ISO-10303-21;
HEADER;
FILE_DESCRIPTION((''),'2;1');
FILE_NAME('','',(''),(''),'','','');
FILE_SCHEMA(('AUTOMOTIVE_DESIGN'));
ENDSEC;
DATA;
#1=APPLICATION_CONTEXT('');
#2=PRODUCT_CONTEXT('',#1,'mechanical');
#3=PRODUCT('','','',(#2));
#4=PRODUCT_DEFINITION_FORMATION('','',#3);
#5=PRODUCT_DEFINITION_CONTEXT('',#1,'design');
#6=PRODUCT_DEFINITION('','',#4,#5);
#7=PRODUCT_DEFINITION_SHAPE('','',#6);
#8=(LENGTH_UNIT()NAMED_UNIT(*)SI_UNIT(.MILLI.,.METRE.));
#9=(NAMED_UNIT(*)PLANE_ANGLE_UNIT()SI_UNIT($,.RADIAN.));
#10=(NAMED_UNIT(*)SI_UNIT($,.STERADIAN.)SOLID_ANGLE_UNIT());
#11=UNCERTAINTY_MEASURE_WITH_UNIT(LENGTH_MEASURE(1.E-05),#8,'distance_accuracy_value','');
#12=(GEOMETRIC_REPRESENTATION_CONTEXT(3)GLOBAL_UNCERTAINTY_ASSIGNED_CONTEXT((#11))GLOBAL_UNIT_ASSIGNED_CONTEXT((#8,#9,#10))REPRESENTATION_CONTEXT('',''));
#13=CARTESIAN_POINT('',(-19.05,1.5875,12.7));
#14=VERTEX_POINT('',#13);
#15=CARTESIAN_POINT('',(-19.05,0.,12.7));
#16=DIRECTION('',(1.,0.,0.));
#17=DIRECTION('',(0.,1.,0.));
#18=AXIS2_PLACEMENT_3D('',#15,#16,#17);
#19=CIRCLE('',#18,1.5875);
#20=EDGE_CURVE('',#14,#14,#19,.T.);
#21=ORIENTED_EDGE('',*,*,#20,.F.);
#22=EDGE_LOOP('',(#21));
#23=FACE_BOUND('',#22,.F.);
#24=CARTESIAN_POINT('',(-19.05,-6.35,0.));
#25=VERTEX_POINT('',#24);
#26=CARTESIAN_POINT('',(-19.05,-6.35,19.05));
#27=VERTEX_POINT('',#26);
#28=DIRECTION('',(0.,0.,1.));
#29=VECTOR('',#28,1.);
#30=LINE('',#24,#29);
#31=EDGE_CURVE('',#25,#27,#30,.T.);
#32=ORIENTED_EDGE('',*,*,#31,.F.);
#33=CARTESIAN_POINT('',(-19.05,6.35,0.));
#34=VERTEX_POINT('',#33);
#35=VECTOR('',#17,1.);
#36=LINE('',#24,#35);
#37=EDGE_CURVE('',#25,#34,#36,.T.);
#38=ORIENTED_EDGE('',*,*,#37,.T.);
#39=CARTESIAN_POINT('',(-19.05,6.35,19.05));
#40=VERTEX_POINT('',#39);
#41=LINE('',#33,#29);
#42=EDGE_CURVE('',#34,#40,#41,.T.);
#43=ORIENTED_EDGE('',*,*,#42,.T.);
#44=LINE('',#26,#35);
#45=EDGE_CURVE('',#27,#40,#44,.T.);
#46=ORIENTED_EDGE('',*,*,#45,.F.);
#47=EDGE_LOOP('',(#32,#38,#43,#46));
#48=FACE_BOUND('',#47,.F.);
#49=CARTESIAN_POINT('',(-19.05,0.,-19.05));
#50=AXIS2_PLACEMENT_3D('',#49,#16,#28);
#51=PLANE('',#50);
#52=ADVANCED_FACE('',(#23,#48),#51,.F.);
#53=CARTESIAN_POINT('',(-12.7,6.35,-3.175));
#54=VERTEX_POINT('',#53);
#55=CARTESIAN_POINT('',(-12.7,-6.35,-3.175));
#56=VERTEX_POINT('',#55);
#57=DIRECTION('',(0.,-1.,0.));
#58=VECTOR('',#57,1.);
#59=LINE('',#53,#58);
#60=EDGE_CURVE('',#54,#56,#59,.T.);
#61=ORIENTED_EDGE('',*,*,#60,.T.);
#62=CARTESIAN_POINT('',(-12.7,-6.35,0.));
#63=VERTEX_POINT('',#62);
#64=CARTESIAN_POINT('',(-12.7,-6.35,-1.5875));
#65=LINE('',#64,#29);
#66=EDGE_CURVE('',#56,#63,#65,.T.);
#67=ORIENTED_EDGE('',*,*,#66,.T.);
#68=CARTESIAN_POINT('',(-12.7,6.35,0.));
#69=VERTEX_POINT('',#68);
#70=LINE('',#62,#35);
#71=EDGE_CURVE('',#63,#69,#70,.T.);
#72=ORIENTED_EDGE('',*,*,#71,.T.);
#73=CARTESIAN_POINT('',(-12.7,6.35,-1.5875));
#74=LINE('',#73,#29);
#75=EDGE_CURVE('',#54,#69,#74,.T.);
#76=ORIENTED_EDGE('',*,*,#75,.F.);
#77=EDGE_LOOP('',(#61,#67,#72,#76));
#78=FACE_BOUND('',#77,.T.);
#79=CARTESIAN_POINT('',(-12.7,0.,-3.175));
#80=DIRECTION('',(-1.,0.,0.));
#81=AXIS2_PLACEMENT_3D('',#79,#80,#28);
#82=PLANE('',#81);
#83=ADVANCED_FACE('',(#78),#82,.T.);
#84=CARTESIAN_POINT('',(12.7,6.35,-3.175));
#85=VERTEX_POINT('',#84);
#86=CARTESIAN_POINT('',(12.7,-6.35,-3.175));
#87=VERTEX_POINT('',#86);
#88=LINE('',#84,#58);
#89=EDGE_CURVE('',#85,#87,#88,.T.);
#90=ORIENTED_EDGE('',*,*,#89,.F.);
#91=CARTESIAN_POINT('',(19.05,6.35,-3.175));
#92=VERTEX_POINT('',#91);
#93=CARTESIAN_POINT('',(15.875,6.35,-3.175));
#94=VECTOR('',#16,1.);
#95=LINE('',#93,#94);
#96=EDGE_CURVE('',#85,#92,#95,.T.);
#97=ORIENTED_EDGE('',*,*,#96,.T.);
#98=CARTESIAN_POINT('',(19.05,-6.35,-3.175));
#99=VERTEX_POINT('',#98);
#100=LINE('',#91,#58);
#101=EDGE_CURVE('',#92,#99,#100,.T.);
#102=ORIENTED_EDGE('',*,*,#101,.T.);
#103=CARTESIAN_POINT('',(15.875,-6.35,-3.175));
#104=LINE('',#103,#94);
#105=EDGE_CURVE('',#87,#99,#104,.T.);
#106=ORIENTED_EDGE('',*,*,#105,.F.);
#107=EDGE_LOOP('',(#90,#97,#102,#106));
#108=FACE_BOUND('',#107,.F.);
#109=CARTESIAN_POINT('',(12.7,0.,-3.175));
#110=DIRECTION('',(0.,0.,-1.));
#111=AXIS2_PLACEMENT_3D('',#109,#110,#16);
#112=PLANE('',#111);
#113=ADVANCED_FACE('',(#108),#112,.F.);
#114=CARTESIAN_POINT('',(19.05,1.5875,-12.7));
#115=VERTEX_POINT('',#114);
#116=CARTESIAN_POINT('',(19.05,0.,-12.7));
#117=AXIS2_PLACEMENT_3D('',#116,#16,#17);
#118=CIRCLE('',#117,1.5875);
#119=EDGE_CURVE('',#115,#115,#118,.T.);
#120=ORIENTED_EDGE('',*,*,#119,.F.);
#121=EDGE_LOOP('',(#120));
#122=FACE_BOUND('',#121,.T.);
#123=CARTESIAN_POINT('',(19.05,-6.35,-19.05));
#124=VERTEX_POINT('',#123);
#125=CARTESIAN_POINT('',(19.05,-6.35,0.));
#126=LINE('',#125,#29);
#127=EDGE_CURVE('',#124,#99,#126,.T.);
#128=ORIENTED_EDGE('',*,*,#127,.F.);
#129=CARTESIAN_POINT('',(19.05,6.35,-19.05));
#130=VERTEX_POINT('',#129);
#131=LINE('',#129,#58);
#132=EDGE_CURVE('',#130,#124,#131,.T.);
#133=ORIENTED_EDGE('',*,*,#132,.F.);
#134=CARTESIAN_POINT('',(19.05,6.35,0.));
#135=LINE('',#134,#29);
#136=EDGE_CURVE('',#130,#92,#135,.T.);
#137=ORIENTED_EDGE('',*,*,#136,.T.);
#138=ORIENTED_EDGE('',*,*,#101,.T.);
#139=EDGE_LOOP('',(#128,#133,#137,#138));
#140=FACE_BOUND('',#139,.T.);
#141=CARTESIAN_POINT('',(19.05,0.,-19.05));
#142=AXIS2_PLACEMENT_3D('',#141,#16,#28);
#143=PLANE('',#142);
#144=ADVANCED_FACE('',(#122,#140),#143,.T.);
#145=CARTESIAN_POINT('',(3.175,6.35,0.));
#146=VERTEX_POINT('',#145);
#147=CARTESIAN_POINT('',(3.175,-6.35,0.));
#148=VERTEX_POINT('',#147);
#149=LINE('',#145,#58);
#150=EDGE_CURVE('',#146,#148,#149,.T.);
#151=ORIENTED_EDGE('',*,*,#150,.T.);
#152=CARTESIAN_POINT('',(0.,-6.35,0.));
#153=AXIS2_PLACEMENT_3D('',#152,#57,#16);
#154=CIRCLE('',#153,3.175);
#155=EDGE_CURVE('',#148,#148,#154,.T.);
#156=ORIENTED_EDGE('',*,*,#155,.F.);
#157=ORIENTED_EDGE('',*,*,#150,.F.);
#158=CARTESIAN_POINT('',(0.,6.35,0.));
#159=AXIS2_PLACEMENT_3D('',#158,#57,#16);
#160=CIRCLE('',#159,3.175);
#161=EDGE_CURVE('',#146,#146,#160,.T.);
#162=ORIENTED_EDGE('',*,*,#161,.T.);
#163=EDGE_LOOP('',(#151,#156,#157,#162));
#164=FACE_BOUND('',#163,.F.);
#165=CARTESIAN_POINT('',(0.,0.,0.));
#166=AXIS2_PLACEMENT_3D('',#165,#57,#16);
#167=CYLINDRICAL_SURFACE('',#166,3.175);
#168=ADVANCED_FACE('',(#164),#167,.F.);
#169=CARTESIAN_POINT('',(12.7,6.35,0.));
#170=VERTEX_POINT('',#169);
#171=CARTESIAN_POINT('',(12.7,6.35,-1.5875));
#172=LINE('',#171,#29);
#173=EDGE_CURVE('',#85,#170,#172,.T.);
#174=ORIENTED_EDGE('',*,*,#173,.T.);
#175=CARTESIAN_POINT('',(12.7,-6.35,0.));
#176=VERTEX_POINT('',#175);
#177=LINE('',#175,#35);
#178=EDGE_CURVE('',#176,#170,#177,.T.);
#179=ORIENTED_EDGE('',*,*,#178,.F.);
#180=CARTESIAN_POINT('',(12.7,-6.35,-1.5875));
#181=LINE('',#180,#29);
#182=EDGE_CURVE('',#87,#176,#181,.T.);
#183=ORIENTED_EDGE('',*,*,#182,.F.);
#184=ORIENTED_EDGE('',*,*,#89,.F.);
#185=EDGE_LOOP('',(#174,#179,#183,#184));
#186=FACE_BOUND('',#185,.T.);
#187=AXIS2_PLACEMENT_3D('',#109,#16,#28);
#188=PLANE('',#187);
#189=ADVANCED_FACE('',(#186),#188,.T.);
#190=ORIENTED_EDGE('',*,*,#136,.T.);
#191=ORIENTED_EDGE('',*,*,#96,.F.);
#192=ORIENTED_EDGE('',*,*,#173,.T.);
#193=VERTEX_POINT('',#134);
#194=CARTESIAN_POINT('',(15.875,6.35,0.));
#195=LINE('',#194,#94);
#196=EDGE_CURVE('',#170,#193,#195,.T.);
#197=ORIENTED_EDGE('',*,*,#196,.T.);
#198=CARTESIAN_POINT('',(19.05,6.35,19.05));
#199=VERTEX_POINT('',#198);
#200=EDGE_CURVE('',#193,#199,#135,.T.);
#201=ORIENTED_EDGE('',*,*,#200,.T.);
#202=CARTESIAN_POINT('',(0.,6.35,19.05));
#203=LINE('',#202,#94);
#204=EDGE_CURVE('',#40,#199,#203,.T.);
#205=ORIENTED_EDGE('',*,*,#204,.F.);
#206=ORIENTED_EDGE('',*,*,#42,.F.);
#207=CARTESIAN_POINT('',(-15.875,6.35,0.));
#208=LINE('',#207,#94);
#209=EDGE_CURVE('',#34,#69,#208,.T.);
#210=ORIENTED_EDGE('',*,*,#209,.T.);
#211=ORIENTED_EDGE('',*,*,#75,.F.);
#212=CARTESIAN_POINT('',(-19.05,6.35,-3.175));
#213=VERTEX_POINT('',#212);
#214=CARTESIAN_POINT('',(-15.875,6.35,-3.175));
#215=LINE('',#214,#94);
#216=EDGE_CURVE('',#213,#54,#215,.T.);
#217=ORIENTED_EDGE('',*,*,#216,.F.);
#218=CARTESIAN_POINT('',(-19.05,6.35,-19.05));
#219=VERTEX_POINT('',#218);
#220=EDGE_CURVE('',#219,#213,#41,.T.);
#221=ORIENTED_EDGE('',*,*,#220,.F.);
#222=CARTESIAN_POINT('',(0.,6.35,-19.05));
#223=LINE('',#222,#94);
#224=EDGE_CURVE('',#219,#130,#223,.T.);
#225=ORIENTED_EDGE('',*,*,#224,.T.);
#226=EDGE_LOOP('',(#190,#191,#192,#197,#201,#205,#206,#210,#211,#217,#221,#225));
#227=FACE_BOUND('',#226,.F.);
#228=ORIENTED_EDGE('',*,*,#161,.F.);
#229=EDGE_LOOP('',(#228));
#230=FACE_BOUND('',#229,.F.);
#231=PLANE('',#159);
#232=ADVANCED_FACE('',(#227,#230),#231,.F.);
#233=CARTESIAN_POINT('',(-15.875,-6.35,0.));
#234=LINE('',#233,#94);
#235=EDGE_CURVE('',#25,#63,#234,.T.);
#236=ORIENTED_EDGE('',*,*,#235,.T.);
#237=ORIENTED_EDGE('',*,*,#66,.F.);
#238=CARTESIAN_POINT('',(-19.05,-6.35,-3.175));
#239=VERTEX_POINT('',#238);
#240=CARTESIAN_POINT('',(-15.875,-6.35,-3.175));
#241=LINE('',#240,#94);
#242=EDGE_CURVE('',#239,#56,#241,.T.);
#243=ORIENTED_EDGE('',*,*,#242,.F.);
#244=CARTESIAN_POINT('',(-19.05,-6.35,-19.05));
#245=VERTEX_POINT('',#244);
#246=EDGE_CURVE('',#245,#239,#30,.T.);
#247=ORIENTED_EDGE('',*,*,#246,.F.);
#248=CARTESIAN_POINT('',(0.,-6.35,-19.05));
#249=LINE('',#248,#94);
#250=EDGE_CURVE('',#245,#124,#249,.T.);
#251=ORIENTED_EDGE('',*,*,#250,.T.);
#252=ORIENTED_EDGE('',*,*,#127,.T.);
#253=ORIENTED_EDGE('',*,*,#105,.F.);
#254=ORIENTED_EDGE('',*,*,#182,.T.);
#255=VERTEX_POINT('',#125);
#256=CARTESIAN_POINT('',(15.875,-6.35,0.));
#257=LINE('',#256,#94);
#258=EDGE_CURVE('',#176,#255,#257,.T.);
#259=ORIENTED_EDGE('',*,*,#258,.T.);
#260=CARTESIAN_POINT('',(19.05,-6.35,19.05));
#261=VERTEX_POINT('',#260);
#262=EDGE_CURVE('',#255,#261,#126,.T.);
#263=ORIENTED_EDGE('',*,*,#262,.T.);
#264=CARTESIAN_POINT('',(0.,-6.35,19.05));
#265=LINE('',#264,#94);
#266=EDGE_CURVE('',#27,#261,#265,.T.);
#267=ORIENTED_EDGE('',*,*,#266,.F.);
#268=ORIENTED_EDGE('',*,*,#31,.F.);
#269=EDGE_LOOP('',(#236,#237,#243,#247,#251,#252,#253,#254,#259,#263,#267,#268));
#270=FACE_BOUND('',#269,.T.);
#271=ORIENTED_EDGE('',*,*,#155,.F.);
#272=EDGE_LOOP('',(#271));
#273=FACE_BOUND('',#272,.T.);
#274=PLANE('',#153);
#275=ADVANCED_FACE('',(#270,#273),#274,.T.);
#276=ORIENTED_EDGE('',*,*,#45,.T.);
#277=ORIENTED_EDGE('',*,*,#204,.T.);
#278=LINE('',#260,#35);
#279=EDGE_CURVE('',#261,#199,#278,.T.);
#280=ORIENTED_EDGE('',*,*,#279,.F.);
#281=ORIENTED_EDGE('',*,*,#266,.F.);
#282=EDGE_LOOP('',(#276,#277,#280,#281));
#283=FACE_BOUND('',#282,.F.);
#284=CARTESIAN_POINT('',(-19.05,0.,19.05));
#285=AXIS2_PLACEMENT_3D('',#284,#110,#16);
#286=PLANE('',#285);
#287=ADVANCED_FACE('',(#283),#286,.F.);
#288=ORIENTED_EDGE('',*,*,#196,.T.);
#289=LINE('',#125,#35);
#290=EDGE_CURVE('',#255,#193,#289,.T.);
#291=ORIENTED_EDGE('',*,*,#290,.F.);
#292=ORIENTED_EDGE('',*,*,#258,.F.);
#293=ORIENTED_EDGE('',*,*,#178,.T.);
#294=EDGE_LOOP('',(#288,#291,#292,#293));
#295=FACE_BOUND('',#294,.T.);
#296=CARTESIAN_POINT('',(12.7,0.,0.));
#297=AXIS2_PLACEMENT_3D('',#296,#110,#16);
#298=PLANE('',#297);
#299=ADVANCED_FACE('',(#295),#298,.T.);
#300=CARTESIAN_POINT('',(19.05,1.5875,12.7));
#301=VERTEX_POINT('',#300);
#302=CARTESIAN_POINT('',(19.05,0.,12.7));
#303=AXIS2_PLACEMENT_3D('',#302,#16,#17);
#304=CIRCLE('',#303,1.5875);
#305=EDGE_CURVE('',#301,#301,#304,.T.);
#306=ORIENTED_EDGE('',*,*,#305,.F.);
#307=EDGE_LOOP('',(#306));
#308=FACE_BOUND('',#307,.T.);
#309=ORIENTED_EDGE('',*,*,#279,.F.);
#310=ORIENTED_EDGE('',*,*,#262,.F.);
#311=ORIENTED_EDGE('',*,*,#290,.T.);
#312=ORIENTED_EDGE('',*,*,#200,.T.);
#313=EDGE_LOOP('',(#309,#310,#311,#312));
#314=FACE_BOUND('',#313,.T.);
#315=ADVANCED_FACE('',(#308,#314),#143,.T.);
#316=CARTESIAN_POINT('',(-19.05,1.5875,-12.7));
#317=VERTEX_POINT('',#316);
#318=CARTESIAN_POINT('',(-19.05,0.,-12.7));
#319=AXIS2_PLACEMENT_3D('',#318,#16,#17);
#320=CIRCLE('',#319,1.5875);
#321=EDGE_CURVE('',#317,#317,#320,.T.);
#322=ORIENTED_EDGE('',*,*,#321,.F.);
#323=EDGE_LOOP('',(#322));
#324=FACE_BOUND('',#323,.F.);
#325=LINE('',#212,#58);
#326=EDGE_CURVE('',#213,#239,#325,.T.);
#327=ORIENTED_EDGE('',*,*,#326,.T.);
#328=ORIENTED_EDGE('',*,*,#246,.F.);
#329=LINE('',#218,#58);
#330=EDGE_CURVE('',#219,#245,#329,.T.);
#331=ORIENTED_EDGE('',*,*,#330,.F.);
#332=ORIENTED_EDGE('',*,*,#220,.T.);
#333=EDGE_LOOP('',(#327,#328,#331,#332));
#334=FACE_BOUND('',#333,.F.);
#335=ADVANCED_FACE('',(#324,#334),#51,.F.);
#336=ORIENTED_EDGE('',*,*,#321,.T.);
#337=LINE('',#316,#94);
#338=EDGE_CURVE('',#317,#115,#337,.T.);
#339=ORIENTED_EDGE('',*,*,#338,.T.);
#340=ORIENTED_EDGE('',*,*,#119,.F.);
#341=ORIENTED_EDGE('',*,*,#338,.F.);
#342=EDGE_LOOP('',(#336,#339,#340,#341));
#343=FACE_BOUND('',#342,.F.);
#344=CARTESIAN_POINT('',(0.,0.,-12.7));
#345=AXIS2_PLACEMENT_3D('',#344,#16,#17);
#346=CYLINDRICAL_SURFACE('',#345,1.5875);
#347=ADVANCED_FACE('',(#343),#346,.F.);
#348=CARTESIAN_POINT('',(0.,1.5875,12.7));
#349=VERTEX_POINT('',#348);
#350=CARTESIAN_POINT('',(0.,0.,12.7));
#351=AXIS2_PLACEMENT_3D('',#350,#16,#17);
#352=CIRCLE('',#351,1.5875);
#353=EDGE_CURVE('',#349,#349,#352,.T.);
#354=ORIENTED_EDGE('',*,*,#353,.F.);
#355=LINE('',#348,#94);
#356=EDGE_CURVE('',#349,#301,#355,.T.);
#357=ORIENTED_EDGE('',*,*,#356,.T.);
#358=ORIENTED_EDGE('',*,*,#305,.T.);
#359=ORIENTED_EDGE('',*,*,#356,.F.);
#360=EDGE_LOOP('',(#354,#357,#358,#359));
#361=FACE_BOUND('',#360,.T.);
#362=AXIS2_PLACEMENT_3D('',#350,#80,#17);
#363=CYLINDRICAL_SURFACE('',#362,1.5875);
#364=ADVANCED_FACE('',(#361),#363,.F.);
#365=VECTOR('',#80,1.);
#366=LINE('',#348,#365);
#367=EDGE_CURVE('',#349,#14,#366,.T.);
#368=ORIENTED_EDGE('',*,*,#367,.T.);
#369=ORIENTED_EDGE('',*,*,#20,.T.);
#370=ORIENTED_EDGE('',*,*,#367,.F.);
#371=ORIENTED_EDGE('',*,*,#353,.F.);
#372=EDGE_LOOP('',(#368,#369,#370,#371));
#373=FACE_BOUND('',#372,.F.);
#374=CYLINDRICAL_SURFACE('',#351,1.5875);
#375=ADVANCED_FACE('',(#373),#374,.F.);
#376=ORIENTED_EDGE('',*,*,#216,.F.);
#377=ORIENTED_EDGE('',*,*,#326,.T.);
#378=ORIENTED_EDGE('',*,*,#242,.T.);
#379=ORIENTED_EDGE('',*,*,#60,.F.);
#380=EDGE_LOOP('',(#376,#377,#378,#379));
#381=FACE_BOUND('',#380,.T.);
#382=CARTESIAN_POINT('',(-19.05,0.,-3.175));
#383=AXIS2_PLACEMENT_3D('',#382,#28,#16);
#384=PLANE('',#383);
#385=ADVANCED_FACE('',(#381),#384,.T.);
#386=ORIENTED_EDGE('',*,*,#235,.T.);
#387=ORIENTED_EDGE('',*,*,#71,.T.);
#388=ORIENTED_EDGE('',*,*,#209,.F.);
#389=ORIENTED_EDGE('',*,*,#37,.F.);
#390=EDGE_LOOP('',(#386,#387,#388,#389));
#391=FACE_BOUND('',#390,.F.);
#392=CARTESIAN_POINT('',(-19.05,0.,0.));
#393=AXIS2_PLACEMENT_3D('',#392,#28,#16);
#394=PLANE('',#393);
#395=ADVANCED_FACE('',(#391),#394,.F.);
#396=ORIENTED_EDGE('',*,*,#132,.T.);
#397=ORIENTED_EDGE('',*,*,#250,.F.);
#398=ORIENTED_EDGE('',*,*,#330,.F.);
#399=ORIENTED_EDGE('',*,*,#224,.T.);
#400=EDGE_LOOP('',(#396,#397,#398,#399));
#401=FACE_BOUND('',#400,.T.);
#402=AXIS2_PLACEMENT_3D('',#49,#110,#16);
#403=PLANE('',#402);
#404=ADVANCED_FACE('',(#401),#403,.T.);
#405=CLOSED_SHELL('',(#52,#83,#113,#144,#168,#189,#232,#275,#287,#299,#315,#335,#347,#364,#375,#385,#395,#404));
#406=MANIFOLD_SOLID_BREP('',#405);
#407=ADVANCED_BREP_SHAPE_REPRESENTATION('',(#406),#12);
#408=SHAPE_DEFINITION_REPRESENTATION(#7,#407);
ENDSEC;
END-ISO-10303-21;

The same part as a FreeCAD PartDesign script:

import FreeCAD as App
import Part
import Sketcher
Q = App.Units.Quantity

doc = App.newDocument("Part")
body = doc.addObject("PartDesign::Body", "Body")

# Sketch on XZ plane
sketch1 = doc.addObject("Sketcher::SketchObject", "Sketch")
body.addObject(sketch1)
sketch1.AttachmentSupport = (doc.XZ_Plane, [""])
sketch1.MapMode = "FlatFace"
sketch1.addGeometry(Part.LineSegment(App.Vector(-19, 19, 0), App.Vector(-19, -19, 0)), False)
sketch1.addGeometry(Part.LineSegment(App.Vector(-19, -19, 0), App.Vector(19, -19, 0)), False)
sketch1.addGeometry(Part.LineSegment(App.Vector(19, -19, 0), App.Vector(19, 19, 0)), False)
sketch1.addGeometry(Part.LineSegment(App.Vector(19, 19, 0), App.Vector(-19, 19, 0)), False)
sketch1.addConstraint(Sketcher.Constraint("Coincident", 0, 2, 1, 1))
sketch1.addConstraint(Sketcher.Constraint("Coincident", 1, 2, 2, 1))
sketch1.addConstraint(Sketcher.Constraint("Coincident", 2, 2, 3, 1))
sketch1.addConstraint(Sketcher.Constraint("Coincident", 3, 2, 0, 1))
sketch1.addConstraint(Sketcher.Constraint("Vertical", 0))
sketch1.addConstraint(Sketcher.Constraint("Horizontal", 1))
sketch1.addConstraint(Sketcher.Constraint("Vertical", 2))
sketch1.addConstraint(Sketcher.Constraint("Horizontal", 3))
sketch1.addConstraint(Sketcher.Constraint("Symmetric", 0, 2, 2, 2, -1, 1))
sketch1.addConstraint(Sketcher.Constraint("Equal", 3, 0))
sketch1.addConstraint(Sketcher.Constraint("DistanceX", 1, 1, 1, 2, Q("1.5 in")))
pad1 = doc.addObject("PartDesign::Pad", "Pad")
body.addObject(pad1)
pad1.Profile = sketch1
pad1.Length = Q("0.5 in")
pad1.Midplane = True

# Sketch on XZ plane
sketch2 = doc.addObject("Sketcher::SketchObject", "Sketch001")
body.addObject(sketch2)
sketch2.AttachmentSupport = (doc.XZ_Plane, [""])
sketch2.MapMode = "FlatFace"
sketch2.addGeometry(Part.Circle(App.Vector(0, 0, 0), App.Vector(0, 0, 1), 3.2), False)
sketch2.addConstraint(Sketcher.Constraint("Coincident", 0, 3, -1, 1))
sketch2.addConstraint(Sketcher.Constraint("Diameter", 0, Q("0.25 in")))
pocket1 = doc.addObject("PartDesign::Pocket", "Pocket")
body.addObject(pocket1)
pocket1.Profile = sketch2
pocket1.Length = Q("0.5 in")
pocket1.Midplane = True

# Sketch on XZ plane
sketch3 = doc.addObject("Sketcher::SketchObject", "Sketch002")
body.addObject(sketch3)
sketch3.AttachmentSupport = (doc.XZ_Plane, [""])
sketch3.MapMode = "FlatFace"
sketch3.addGeometry(Part.LineSegment(App.Vector(-19.1, 0, 0), App.Vector(-19.1, -3.2, 0)), False)
sketch3.addGeometry(Part.LineSegment(App.Vector(-19.1, -3.2, 0), App.Vector(-12.7, -3.2, 0)), False)
sketch3.addGeometry(Part.LineSegment(App.Vector(-12.7, -3.2, 0), App.Vector(-12.7, 0, 0)), False)
sketch3.addGeometry(Part.LineSegment(App.Vector(-12.7, 0, 0), App.Vector(-19.1, 0, 0)), False)
sketch3.addGeometry(Part.LineSegment(App.Vector(12.7, 0, 0), App.Vector(12.7, -3.2, 0)), False)
sketch3.addGeometry(Part.LineSegment(App.Vector(12.7, -3.2, 0), App.Vector(19.1, -3.2, 0)), False)
sketch3.addGeometry(Part.LineSegment(App.Vector(19.1, -3.2, 0), App.Vector(19.1, 0, 0)), False)
sketch3.addGeometry(Part.LineSegment(App.Vector(19.1, 0, 0), App.Vector(12.7, 0, 0)), False)
sketch3.addConstraint(Sketcher.Constraint("Coincident", 0, 2, 1, 1))
sketch3.addConstraint(Sketcher.Constraint("Coincident", 1, 2, 2, 1))
sketch3.addConstraint(Sketcher.Constraint("Coincident", 2, 2, 3, 1))
sketch3.addConstraint(Sketcher.Constraint("Coincident", 3, 2, 0, 1))
sketch3.addConstraint(Sketcher.Constraint("Coincident", 4, 2, 5, 1))
sketch3.addConstraint(Sketcher.Constraint("Coincident", 5, 2, 6, 1))
sketch3.addConstraint(Sketcher.Constraint("Coincident", 6, 2, 7, 1))
sketch3.addConstraint(Sketcher.Constraint("Coincident", 7, 2, 4, 1))
sketch3.addConstraint(Sketcher.Constraint("Vertical", 0))
sketch3.addConstraint(Sketcher.Constraint("Horizontal", 1))
sketch3.addConstraint(Sketcher.Constraint("Vertical", 2))
sketch3.addConstraint(Sketcher.Constraint("Horizontal", 3))
sketch3.addConstraint(Sketcher.Constraint("Vertical", 4))
sketch3.addConstraint(Sketcher.Constraint("Horizontal", 5))
sketch3.addConstraint(Sketcher.Constraint("Vertical", 6))
sketch3.addConstraint(Sketcher.Constraint("Horizontal", 7))
sketch3.addConstraint(Sketcher.Constraint("Symmetric", 3, 2, 6, 2, -1, 1))
sketch3.addConstraint(Sketcher.Constraint("Symmetric", 1, 2, 4, 2, -2))
sketch3.addConstraint(Sketcher.Constraint("PointOnObject", 2, 2, -1))
sketch3.addConstraint(Sketcher.Constraint("DistanceX", 1, 2, 4, 2, Q("1 in")))
sketch3.addConstraint(Sketcher.Constraint("DistanceX", 1, 1, 1, 2, Q("0.25 in")))
sketch3.addConstraint(Sketcher.Constraint("DistanceY", 0, 2, 0, 1, Q("0.125 in")))
pocket2 = doc.addObject("PartDesign::Pocket", "Pocket001")
body.addObject(pocket2)
pocket2.Profile = sketch3
pocket2.Length = Q("0.5 in")
pocket2.Midplane = True

# Sketch on YZ plane
sketch4 = doc.addObject("Sketcher::SketchObject", "Sketch003")
body.addObject(sketch4)
sketch4.AttachmentSupport = (doc.YZ_Plane, [""])
sketch4.MapMode = "FlatFace"
sketch4.addGeometry(Part.Circle(App.Vector(0, 12.7, 0), App.Vector(0, 0, 1), 1.6), False)
sketch4.addGeometry(Part.Circle(App.Vector(0, -12.7, 0), App.Vector(0, 0, 1), 1.6), False)
sketch4.addConstraint(Sketcher.Constraint("Equal", 0, 1))
sketch4.addConstraint(Sketcher.Constraint("Symmetric", 0, 3, 1, 3, -1, 1))
sketch4.addConstraint(Sketcher.Constraint("PointOnObject", 0, 3, -2))
sketch4.addConstraint(Sketcher.Constraint("Diameter", 0, Q("0.125 in")))
sketch4.addConstraint(Sketcher.Constraint("DistanceY", 1, 3, 0, 3, Q("1 in")))
pocket3 = doc.addObject("PartDesign::Pocket", "Pocket002")
body.addObject(pocket3)
pocket3.Profile = sketch4
pocket3.Length = Q("1.5 in")
pocket3.Midplane = True

doc.recompute()
